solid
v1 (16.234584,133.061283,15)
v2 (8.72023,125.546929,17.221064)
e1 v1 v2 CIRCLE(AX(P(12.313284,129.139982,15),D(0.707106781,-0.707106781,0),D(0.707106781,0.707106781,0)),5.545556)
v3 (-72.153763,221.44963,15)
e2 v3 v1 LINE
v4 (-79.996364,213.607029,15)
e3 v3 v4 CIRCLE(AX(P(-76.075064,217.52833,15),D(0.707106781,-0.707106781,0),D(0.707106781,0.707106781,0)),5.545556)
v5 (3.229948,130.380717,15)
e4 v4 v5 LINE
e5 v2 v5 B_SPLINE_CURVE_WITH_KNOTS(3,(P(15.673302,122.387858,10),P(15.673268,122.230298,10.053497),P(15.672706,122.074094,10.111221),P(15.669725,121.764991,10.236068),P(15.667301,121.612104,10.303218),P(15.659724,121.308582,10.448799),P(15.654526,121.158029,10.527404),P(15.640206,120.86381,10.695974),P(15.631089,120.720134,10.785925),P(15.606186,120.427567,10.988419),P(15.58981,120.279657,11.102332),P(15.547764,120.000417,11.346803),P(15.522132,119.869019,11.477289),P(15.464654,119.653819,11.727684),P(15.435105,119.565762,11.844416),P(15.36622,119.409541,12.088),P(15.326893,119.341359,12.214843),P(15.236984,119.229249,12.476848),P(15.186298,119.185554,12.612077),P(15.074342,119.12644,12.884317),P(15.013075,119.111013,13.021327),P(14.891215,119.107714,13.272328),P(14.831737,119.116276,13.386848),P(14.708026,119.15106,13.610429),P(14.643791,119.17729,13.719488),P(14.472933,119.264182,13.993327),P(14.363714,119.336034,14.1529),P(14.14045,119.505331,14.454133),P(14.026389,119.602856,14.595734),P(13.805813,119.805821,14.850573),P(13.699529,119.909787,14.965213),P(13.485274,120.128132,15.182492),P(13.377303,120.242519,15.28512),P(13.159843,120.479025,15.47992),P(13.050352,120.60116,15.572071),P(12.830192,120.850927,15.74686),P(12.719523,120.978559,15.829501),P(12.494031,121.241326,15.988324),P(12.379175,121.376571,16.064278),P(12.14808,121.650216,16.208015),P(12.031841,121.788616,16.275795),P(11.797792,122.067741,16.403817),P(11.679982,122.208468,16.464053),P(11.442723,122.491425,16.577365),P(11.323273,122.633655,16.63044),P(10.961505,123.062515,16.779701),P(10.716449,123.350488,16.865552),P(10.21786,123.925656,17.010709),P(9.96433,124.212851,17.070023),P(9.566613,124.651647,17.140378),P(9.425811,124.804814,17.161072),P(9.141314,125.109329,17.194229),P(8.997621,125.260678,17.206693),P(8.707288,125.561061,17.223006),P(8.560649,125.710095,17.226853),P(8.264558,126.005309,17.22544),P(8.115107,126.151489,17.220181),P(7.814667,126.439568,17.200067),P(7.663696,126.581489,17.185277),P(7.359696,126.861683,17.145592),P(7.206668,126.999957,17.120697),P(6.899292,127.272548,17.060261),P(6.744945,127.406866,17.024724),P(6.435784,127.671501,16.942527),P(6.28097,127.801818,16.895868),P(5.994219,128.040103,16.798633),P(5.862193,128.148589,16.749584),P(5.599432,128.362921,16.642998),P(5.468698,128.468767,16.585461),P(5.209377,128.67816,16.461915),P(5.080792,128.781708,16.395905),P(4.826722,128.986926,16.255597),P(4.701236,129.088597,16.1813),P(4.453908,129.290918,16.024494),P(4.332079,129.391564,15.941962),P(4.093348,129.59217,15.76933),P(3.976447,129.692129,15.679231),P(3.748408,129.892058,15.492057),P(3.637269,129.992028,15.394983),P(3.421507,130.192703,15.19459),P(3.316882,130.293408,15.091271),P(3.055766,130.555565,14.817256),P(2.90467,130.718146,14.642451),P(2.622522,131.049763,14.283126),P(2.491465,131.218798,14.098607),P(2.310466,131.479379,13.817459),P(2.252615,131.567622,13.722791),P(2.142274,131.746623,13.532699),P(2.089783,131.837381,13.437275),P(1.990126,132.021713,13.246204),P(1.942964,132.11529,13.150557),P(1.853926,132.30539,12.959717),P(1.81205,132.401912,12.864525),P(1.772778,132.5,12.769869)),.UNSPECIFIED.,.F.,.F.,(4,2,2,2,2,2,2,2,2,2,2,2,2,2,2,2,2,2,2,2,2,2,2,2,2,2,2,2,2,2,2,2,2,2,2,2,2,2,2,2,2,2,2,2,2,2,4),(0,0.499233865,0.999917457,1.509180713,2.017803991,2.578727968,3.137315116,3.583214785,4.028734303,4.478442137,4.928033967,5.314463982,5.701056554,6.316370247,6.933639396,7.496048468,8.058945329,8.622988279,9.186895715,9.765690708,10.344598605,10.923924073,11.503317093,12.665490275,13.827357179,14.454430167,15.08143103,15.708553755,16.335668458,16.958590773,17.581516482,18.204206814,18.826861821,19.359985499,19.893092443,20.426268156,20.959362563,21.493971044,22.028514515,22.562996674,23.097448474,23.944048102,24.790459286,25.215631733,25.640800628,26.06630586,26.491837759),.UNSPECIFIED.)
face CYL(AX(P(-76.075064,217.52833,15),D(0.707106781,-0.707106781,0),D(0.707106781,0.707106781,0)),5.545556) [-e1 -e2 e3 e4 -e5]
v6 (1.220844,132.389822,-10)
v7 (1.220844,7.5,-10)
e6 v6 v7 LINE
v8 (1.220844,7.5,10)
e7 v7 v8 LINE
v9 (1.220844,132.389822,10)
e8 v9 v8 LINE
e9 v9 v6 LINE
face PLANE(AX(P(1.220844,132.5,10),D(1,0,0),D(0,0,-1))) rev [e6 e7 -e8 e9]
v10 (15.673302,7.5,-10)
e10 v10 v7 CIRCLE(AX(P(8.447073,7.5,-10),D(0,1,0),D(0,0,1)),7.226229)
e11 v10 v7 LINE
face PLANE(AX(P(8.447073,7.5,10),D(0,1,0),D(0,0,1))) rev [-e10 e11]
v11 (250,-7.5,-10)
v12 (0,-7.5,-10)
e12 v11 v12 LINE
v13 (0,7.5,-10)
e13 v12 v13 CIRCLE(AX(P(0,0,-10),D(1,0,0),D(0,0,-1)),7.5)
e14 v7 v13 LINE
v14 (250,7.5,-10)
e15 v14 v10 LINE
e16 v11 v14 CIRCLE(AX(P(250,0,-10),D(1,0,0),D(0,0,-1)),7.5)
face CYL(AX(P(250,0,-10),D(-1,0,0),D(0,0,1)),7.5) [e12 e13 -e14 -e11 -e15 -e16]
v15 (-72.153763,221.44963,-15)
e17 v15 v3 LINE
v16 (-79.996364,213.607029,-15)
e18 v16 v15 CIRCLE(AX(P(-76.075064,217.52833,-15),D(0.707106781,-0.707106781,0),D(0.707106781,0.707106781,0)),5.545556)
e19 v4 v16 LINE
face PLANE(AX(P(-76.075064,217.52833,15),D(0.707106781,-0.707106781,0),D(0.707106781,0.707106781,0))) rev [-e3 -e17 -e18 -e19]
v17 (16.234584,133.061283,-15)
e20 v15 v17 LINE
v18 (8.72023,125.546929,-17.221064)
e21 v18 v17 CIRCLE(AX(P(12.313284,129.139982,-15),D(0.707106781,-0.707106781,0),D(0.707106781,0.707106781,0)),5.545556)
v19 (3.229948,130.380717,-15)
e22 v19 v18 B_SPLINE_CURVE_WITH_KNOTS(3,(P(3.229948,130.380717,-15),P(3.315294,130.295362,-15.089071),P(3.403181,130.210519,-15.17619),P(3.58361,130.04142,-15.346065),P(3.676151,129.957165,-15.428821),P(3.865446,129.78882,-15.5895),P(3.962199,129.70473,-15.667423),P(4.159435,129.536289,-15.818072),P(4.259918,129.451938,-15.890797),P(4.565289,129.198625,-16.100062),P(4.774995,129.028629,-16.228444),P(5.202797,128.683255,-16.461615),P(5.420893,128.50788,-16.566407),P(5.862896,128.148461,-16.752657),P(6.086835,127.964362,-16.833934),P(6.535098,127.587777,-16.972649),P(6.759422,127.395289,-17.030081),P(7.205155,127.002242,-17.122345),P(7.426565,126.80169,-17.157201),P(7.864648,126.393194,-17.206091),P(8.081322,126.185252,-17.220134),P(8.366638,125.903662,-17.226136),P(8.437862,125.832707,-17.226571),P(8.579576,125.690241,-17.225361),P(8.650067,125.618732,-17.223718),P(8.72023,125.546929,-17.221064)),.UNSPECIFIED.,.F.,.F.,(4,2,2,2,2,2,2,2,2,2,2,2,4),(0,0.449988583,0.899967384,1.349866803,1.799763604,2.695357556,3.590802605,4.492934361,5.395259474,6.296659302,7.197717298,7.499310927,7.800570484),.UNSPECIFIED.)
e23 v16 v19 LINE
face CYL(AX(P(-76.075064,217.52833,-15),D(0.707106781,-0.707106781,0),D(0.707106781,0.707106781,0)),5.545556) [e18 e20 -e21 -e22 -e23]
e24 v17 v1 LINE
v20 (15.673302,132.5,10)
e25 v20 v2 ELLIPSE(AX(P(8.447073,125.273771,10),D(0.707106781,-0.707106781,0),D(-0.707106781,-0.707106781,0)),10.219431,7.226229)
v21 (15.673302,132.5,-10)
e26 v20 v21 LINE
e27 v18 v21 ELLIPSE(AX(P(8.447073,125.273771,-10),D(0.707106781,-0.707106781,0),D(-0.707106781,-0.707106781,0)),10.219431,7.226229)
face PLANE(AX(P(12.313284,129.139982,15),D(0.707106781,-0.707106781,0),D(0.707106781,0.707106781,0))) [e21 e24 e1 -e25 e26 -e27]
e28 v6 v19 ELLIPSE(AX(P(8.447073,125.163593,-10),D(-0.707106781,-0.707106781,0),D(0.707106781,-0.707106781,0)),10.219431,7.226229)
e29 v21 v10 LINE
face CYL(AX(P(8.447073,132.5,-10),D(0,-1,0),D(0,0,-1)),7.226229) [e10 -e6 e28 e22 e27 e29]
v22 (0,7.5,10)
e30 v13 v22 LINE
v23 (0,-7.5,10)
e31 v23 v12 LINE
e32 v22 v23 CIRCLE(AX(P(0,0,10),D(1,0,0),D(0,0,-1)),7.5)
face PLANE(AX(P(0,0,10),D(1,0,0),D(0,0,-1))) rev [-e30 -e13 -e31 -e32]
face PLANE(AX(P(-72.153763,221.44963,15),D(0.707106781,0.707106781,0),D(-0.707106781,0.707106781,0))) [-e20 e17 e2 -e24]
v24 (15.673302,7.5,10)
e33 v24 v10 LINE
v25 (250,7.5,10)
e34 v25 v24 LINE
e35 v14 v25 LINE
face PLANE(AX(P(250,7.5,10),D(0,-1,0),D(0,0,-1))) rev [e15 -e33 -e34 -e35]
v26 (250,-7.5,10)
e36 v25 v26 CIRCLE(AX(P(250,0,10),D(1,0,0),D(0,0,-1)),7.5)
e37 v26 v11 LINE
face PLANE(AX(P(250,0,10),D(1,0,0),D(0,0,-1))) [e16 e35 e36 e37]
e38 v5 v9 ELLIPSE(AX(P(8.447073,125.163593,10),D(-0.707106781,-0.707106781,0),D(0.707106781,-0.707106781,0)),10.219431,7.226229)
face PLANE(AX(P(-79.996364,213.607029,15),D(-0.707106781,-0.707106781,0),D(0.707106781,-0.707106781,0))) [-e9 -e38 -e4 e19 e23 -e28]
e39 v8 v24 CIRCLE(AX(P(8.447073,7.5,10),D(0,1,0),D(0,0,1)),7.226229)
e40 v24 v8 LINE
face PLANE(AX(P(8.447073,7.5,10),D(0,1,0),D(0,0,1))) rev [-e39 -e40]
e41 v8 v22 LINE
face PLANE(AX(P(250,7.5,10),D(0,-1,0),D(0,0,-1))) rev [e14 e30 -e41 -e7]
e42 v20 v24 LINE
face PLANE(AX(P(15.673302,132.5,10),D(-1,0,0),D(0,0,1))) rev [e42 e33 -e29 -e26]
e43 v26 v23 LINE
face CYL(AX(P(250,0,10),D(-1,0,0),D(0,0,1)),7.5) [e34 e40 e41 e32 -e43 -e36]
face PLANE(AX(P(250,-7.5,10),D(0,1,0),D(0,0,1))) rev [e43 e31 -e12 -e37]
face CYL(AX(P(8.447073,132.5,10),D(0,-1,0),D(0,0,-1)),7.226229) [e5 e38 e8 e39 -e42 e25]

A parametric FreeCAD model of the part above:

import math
import FreeCAD as App
import Part
import Sketcher
from FreeCAD import Vector

doc = App.newDocument("Part")
body = doc.addObject("PartDesign::Body", "Body")

sketch1 = doc.addObject("Sketcher::SketchObject", "Sketch")
body.addObject(sketch1)
sketch1.AttachmentSupport = (doc.YZ_Plane, [""])
sketch1.MapMode = "FlatFace"
sketch1.addGeometry([
    Part.LineSegment(Vector(8, -10, 0), Vector(8, 10, 0)),
    Part.ArcOfCircle(Part.Circle(Vector(0, 10, 0), Vector(0, 0, 1), 8), math.radians(0), math.radians(180)),
    Part.LineSegment(Vector(-8, 10, 0), Vector(-8, -10, 0)),
    Part.ArcOfCircle(Part.Circle(Vector(0, -10, 0), Vector(0, 0, 1), 8), math.radians(180), math.radians(360)),
], False)
sketch1.addConstraint([
    Sketcher.Constraint("Tangent", 0, 2, 1, 1),
    Sketcher.Constraint("Tangent", 1, 2, 2, 1),
    Sketcher.Constraint("Tangent", 2, 2, 3, 1),
    Sketcher.Constraint("Tangent", 3, 2, 0, 1),
    Sketcher.Constraint("Vertical", 0),
    Sketcher.Constraint("Vertical", 2),
    Sketcher.Constraint("Symmetric", 1, 3, 3, 3, -1, 1),
    Sketcher.Constraint("Radius", 1, 7.5),
    Sketcher.Constraint("DistanceY", 0, 1, 0, 2, 20.0),
])
pad1 = doc.addObject("PartDesign::Pad", "Pad")
body.addObject(pad1)
pad1.Profile = sketch1
pad1.Length = 250

sketch2 = doc.addObject("Sketcher::SketchObject", "Sketch001")
body.addObject(sketch2)
sketch2.AttachmentSupport = (doc.XZ_Plane, [""])
sketch2.MapMode = "FlatFace"
sketch2.AttachmentOffset = App.Placement(Vector(0, 0, -7.5), App.Rotation())
sketch2.addGeometry([
    Part.LineSegment(Vector(1, -10, 0), Vector(1, 10, 0)),
    Part.ArcOfCircle(Part.Circle(Vector(8, 10, 0), Vector(0, 0, 1), 7), math.radians(0), math.radians(180)),
    Part.LineSegment(Vector(16, 10, 0), Vector(16, -10, 0)),
    Part.ArcOfCircle(Part.Circle(Vector(8, -10, 0), Vector(0, 0, 1), 7), math.radians(180), math.radians(360)),
], False)
sketch2.addConstraint([
    Sketcher.Constraint("Tangent", 0, 2, 1, 2),
    Sketcher.Constraint("Tangent", 1, 1, 2, 1),
    Sketcher.Constraint("Tangent", 2, 2, 3, 2),
    Sketcher.Constraint("Tangent", 3, 1, 0, 1),
    Sketcher.Constraint("Vertical", 0),
    Sketcher.Constraint("Vertical", 2),
    Sketcher.Constraint("DistanceY", 0, 1, 0, 2, 20.0),
    Sketcher.Constraint("DistanceY", -1, 1, 1, 3, 10.0),
    Sketcher.Constraint("Radius", 1, 7.226229),
    Sketcher.Constraint("DistanceX", -1, 1, 1, 1, 15.673302),
])
pad2 = doc.addObject("PartDesign::Pad", "Pad001")
body.addObject(pad2)
pad2.Profile = sketch2
pad2.Length = 125
pad2.Reversed = True

sketch3 = doc.addObject("Sketcher::SketchObject", "Sketch002")
body.addObject(sketch3)
sketch3.Placement = App.Placement(Vector(-58.413349, 58.413349, 0), App.Rotation(Vector(-0.707106781, -0.707106781, 0), Vector(0, 0, -0.999999999), Vector(0.707106781, -0.707106781, 0), "ZXY"))
sketch3.addGeometry([
    Part.LineSegment(Vector(-106, 15, 0), Vector(-106, -15, 0)),
    Part.ArcOfCircle(Part.Circle(Vector(-100, -15, 0), Vector(0, 0, 1), 6), math.radians(180), math.radians(360)),
    Part.LineSegment(Vector(-94, -15, 0), Vector(-94, 15, 0)),
    Part.ArcOfCircle(Part.Circle(Vector(-100, 15, 0), Vector(0, 0, 1), 6), math.radians(0), math.radians(180)),
], False)
sketch3.addConstraint([
    Sketcher.Constraint("Tangent", 0, 2, 1, 1),
    Sketcher.Constraint("Tangent", 1, 2, 2, 1),
    Sketcher.Constraint("Tangent", 2, 2, 3, 1),
    Sketcher.Constraint("Tangent", 3, 2, 0, 1),
    Sketcher.Constraint("Vertical", 0),
    Sketcher.Constraint("Vertical", 2),
    Sketcher.Constraint("DistanceY", 0, 2, 0, 1, 30.0),
    Sketcher.Constraint("DistanceY", 1, 3, -1, 1, 15.0),
    Sketcher.Constraint("Radius", 1, 5.545556),
    Sketcher.Constraint("DistanceX", 0, 2, -1, 1, 105.56812),
])
pad3 = doc.addObject("PartDesign::Pad", "Pad002")
body.addObject(pad3)
pad3.Profile = sketch3
pad3.Length = 125
pad3.Reversed = True

doc.recompute()
